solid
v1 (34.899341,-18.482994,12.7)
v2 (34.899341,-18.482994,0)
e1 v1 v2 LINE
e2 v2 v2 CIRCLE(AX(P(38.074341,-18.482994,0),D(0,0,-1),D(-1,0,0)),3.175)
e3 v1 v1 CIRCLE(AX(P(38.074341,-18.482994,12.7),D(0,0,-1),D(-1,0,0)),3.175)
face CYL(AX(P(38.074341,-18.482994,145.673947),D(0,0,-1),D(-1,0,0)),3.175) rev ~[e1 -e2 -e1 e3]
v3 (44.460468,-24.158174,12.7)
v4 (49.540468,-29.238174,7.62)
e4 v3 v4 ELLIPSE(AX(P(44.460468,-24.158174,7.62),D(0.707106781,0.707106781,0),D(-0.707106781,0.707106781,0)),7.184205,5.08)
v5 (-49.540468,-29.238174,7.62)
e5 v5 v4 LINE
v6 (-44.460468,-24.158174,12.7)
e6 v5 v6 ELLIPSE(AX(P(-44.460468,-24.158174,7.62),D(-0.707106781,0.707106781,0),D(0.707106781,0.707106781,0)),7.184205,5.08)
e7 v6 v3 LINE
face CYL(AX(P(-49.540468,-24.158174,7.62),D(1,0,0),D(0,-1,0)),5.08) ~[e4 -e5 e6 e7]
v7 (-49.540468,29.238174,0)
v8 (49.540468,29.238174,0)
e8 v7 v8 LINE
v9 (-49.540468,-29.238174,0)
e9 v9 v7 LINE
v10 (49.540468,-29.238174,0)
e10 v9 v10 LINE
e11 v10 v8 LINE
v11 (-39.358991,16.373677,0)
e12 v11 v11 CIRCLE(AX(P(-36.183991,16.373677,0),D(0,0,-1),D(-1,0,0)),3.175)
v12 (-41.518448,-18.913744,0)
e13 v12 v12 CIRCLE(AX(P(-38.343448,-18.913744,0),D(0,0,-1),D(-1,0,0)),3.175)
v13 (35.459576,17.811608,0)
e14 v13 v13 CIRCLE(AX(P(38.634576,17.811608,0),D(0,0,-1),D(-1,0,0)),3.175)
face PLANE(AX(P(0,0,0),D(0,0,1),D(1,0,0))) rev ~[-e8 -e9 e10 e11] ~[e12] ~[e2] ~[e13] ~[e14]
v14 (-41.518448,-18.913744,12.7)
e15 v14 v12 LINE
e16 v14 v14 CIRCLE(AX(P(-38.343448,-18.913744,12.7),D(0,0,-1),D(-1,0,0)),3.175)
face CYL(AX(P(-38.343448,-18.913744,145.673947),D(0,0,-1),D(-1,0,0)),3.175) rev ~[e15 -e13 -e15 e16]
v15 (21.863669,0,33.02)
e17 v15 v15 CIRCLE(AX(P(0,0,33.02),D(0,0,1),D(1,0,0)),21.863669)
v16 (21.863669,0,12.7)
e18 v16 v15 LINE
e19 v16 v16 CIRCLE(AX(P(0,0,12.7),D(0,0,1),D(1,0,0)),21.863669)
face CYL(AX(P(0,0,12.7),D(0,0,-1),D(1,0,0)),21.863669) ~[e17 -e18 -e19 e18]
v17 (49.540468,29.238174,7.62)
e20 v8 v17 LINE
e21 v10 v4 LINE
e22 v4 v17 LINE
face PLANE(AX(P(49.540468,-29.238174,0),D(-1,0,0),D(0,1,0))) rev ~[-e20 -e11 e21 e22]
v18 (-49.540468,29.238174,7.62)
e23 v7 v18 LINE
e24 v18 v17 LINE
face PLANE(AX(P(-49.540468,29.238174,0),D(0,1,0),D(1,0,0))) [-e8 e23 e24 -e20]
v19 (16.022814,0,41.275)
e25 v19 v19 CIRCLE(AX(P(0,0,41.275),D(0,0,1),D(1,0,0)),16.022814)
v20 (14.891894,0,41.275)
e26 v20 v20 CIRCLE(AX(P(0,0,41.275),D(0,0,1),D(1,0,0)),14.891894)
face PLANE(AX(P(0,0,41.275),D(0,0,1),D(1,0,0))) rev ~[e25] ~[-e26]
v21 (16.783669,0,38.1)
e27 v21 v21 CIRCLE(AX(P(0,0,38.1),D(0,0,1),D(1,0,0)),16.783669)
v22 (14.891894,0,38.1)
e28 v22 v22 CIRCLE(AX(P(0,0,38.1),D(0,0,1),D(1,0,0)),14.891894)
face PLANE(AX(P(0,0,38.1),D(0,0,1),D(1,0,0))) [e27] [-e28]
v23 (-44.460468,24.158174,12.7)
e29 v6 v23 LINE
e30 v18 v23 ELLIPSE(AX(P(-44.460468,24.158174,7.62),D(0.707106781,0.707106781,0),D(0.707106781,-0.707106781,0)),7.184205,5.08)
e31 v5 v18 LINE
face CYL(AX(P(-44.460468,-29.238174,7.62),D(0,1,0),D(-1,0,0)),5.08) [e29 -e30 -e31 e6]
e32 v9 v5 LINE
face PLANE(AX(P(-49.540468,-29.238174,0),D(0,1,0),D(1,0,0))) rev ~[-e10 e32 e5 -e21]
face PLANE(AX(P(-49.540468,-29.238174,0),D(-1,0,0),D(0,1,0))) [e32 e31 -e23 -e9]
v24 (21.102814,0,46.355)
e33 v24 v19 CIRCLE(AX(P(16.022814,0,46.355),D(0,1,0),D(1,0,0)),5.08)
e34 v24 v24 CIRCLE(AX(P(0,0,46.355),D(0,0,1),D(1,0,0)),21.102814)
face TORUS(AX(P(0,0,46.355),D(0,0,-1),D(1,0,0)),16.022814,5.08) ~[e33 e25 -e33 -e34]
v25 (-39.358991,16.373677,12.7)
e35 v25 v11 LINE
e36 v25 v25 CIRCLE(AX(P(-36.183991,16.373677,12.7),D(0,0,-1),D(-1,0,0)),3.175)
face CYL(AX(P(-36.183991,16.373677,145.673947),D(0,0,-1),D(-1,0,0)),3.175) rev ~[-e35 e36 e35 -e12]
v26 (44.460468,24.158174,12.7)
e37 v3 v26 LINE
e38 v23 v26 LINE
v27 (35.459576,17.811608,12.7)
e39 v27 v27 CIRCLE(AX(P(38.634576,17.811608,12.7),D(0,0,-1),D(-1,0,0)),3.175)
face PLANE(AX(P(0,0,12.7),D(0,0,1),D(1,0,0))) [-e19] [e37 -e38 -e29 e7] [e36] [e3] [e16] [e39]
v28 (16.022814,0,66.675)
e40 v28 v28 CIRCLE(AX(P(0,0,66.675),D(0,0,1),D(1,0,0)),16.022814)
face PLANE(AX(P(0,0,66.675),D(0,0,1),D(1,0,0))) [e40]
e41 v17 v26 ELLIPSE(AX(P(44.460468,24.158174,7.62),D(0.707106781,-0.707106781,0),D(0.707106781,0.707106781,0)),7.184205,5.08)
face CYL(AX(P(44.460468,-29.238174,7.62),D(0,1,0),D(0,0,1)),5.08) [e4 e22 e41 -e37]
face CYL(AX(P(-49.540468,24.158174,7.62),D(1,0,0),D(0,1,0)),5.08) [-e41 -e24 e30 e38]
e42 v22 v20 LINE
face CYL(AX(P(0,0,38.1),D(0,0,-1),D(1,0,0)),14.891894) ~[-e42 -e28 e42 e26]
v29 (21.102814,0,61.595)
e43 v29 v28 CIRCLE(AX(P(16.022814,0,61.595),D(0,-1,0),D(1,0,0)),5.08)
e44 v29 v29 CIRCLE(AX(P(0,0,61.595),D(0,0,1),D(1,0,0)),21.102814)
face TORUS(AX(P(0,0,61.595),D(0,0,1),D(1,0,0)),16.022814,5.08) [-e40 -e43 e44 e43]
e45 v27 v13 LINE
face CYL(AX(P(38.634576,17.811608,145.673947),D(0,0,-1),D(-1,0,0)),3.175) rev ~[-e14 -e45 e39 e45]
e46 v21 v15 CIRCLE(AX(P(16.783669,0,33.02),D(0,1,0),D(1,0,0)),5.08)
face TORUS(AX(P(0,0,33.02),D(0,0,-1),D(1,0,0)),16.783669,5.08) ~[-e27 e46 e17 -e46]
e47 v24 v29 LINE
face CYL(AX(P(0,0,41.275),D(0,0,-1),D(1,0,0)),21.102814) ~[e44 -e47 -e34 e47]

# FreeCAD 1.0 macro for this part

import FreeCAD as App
import Part
import Sketcher
from FreeCAD import Vector
Q = App.Units.Quantity


def edges_at(feature, points):
    """Names of the edges that pass closest to the given points."""
    edges = feature.Shape.Edges
    near = lambda p: min(range(len(edges)), key=lambda i: edges[i].distToShape(Part.Vertex(*p))[0])
    return sorted({f"Edge{near(p) + 1}" for p in points})

doc = App.newDocument("Part")
body = doc.addObject("PartDesign::Body", "Body")

# Sketch on XY plane
sketch1 = doc.addObject("Sketcher::SketchObject", "Sketch")
body.addObject(sketch1)
sketch1.AttachmentSupport = (doc.XY_Plane, [""])
sketch1.MapMode = "FlatFace"
sketch1.addGeometry([
    Part.LineSegment(Vector(-49.540468, 29.238174, 0), Vector(-49.540468, -29.238174, 0)),
    Part.LineSegment(Vector(-49.540468, -29.238174, 0), Vector(49.540468, -29.238174, 0)),
    Part.LineSegment(Vector(49.540468, -29.238174, 0), Vector(49.540468, 29.238174, 0)),
    Part.LineSegment(Vector(49.540468, 29.238174, 0), Vector(-49.540468, 29.238174, 0)),
], False)
sketch1.addConstraint([
    Sketcher.Constraint("Coincident", 0, 2, 1, 1),
    Sketcher.Constraint("Coincident", 1, 2, 2, 1),
    Sketcher.Constraint("Coincident", 2, 2, 3, 1),
    Sketcher.Constraint("Coincident", 3, 2, 0, 1),
    Sketcher.Constraint("Vertical", 0),
    Sketcher.Constraint("Horizontal", 1),
    Sketcher.Constraint("Vertical", 2),
    Sketcher.Constraint("Horizontal", 3),
    Sketcher.Constraint("Symmetric", 0, 2, 2, 2, -1, 1),
    Sketcher.Constraint("DistanceX", 1, 1, 1, 2, 99.080935),
    Sketcher.Constraint("DistanceY", 0, 2, 0, 1, 58.476347),
])
pad1 = doc.addObject("PartDesign::Pad", "Pad")
body.addObject(pad1)
pad1.Profile = sketch1
pad1.Length = Q("0.5 in")

# Sketch on XY plane
sketch2 = doc.addObject("Sketcher::SketchObject", "Sketch001")
body.addObject(sketch2)
sketch2.AttachmentSupport = (doc.XY_Plane, [""])
sketch2.MapMode = "FlatFace"
sketch2.AttachmentOffset = App.Placement(Vector(0, 0, 0.5 * 25.4), App.Rotation())
sketch2.addGeometry(Part.Circle(Vector(0, 0, 0), Vector(0, 0, 1), 21.863669), False)
sketch2.addConstraint([
    Sketcher.Constraint("Coincident", 0, 3, -1, 1),
    Sketcher.Constraint("Diameter", 0, 43.727337),
])
pad2 = doc.addObject("PartDesign::Pad", "Pad001")
body.addObject(pad2)
pad2.Profile = sketch2
pad2.Length = Q("1 in")
doc.recompute()

fillet = doc.addObject("PartDesign::Fillet", "Fillet")
body.addObject(fillet)
fillet.Base = (pad2, edges_at(pad2, [
    (0, 29.238, 12.7),
    (49.54, 0, 12.7),
    (0, -29.238, 12.7),
    (-49.54, 0, 12.7),
]))
fillet.Radius = Q("0.2 in")

# Sketch on XY plane
sketch3 = doc.addObject("Sketcher::SketchObject", "Sketch002")
body.addObject(sketch3)
sketch3.AttachmentSupport = (doc.XY_Plane, [""])
sketch3.MapMode = "FlatFace"
sketch3.AttachmentOffset = App.Placement(Vector(0, 0, 1.5 * 25.4), App.Rotation())
sketch3.addGeometry(Part.Circle(Vector(0, 0, 0), Vector(0, 0, 1), 14.891894), False)
sketch3.addConstraint([
    Sketcher.Constraint("Coincident", 0, 3, -1, 1),
    Sketcher.Constraint("Diameter", 0, 29.783789),
])
pad3 = doc.addObject("PartDesign::Pad", "Pad002")
body.addObject(pad3)
pad3.Profile = sketch3
pad3.Length = Q("0.125 in")

# Sketch on XY plane
sketch4 = doc.addObject("Sketcher::SketchObject", "Sketch003")
body.addObject(sketch4)
sketch4.AttachmentSupport = (doc.XY_Plane, [""])
sketch4.MapMode = "FlatFace"
sketch4.AttachmentOffset = App.Placement(Vector(0, 0, 1.625 * 25.4), App.Rotation())
sketch4.addGeometry(Part.Circle(Vector(0, 0, 0), Vector(0, 0, 1), 21.102814), False)
sketch4.addConstraint([
    Sketcher.Constraint("Coincident", 0, 3, -1, 1),
    Sketcher.Constraint("Diameter", 0, 42.205629),
])
pad4 = doc.addObject("PartDesign::Pad", "Pad003")
body.addObject(pad4)
pad4.Profile = sketch4
pad4.Length = Q("1 in")
doc.recompute()

fillet2 = doc.addObject("PartDesign::Fillet", "Fillet001")
body.addObject(fillet2)
fillet2.Base = (pad4, edges_at(pad4, [(-21.103, 0, 41.275), (-21.864, 0, 38.1)]))
fillet2.Radius = Q("0.2 in")

# Sketch on XY plane
sketch5 = doc.addObject("Sketcher::SketchObject", "Sketch004")
body.addObject(sketch5)
sketch5.AttachmentSupport = (doc.XY_Plane, [""])
sketch5.MapMode = "FlatFace"
sketch5.AttachmentOffset = App.Placement(Vector(0, 0, 0.5 * 25.4), App.Rotation())
sketch5.addGeometry([
    Part.Circle(Vector(38.634576, 17.811608, 0), Vector(0, 0, 1), 3.175),
    Part.Circle(Vector(38.074341, -18.482994, 0), Vector(0, 0, 1), 3.175),
    Part.Circle(Vector(-36.183991, 16.373677, 0), Vector(0, 0, 1), 3.175),
    Part.Circle(Vector(-38.343448, -18.913744, 0), Vector(0, 0, 1), 3.175),
], False)
sketch5.addConstraint([
    Sketcher.Constraint("Equal", 0, 1),
    Sketcher.Constraint("Equal", 1, 2),
    Sketcher.Constraint("Equal", 2, 3),
    Sketcher.Constraint("Diameter", 0, Q("0.25 in")),
    Sketcher.Constraint("DistanceY", 1, 3, 0, 3, 36.294602),
    Sketcher.Constraint("DistanceX", -1, 1, 1, 3, 38.074341),
    Sketcher.Constraint("DistanceX", 2, 3, -1, 1, 36.183991),
    Sketcher.Constraint("DistanceX", 3, 3, -1, 1, 38.343448),
    Sketcher.Constraint("DistanceY", 2, 3, 0, 3, 1.43793),
    Sketcher.Constraint("DistanceY", 3, 3, 2, 3, 35.287421),
    Sketcher.Constraint("DistanceX", -1, 1, 0, 3, 38.634576),
    Sketcher.Constraint("DistanceY", -1, 1, 0, 3, 17.811608),
])
doc.recompute()
hole = doc.addObject("PartDesign::Hole", "Hole")
body.addObject(hole)
hole.Profile = sketch5
hole.ThreadType = "None"
hole.Diameter = Q("0.25 in")
hole.DepthType = "ThroughAll"
doc.recompute()

fillet3 = doc.addObject("PartDesign::Fillet", "Fillet002")
body.addObject(fillet3)
fillet3.Base = (hole, edges_at(hole, [(-21.103, 0, 66.675)]))
fillet3.Radius = Q("0.2 in")

doc.recompute()
